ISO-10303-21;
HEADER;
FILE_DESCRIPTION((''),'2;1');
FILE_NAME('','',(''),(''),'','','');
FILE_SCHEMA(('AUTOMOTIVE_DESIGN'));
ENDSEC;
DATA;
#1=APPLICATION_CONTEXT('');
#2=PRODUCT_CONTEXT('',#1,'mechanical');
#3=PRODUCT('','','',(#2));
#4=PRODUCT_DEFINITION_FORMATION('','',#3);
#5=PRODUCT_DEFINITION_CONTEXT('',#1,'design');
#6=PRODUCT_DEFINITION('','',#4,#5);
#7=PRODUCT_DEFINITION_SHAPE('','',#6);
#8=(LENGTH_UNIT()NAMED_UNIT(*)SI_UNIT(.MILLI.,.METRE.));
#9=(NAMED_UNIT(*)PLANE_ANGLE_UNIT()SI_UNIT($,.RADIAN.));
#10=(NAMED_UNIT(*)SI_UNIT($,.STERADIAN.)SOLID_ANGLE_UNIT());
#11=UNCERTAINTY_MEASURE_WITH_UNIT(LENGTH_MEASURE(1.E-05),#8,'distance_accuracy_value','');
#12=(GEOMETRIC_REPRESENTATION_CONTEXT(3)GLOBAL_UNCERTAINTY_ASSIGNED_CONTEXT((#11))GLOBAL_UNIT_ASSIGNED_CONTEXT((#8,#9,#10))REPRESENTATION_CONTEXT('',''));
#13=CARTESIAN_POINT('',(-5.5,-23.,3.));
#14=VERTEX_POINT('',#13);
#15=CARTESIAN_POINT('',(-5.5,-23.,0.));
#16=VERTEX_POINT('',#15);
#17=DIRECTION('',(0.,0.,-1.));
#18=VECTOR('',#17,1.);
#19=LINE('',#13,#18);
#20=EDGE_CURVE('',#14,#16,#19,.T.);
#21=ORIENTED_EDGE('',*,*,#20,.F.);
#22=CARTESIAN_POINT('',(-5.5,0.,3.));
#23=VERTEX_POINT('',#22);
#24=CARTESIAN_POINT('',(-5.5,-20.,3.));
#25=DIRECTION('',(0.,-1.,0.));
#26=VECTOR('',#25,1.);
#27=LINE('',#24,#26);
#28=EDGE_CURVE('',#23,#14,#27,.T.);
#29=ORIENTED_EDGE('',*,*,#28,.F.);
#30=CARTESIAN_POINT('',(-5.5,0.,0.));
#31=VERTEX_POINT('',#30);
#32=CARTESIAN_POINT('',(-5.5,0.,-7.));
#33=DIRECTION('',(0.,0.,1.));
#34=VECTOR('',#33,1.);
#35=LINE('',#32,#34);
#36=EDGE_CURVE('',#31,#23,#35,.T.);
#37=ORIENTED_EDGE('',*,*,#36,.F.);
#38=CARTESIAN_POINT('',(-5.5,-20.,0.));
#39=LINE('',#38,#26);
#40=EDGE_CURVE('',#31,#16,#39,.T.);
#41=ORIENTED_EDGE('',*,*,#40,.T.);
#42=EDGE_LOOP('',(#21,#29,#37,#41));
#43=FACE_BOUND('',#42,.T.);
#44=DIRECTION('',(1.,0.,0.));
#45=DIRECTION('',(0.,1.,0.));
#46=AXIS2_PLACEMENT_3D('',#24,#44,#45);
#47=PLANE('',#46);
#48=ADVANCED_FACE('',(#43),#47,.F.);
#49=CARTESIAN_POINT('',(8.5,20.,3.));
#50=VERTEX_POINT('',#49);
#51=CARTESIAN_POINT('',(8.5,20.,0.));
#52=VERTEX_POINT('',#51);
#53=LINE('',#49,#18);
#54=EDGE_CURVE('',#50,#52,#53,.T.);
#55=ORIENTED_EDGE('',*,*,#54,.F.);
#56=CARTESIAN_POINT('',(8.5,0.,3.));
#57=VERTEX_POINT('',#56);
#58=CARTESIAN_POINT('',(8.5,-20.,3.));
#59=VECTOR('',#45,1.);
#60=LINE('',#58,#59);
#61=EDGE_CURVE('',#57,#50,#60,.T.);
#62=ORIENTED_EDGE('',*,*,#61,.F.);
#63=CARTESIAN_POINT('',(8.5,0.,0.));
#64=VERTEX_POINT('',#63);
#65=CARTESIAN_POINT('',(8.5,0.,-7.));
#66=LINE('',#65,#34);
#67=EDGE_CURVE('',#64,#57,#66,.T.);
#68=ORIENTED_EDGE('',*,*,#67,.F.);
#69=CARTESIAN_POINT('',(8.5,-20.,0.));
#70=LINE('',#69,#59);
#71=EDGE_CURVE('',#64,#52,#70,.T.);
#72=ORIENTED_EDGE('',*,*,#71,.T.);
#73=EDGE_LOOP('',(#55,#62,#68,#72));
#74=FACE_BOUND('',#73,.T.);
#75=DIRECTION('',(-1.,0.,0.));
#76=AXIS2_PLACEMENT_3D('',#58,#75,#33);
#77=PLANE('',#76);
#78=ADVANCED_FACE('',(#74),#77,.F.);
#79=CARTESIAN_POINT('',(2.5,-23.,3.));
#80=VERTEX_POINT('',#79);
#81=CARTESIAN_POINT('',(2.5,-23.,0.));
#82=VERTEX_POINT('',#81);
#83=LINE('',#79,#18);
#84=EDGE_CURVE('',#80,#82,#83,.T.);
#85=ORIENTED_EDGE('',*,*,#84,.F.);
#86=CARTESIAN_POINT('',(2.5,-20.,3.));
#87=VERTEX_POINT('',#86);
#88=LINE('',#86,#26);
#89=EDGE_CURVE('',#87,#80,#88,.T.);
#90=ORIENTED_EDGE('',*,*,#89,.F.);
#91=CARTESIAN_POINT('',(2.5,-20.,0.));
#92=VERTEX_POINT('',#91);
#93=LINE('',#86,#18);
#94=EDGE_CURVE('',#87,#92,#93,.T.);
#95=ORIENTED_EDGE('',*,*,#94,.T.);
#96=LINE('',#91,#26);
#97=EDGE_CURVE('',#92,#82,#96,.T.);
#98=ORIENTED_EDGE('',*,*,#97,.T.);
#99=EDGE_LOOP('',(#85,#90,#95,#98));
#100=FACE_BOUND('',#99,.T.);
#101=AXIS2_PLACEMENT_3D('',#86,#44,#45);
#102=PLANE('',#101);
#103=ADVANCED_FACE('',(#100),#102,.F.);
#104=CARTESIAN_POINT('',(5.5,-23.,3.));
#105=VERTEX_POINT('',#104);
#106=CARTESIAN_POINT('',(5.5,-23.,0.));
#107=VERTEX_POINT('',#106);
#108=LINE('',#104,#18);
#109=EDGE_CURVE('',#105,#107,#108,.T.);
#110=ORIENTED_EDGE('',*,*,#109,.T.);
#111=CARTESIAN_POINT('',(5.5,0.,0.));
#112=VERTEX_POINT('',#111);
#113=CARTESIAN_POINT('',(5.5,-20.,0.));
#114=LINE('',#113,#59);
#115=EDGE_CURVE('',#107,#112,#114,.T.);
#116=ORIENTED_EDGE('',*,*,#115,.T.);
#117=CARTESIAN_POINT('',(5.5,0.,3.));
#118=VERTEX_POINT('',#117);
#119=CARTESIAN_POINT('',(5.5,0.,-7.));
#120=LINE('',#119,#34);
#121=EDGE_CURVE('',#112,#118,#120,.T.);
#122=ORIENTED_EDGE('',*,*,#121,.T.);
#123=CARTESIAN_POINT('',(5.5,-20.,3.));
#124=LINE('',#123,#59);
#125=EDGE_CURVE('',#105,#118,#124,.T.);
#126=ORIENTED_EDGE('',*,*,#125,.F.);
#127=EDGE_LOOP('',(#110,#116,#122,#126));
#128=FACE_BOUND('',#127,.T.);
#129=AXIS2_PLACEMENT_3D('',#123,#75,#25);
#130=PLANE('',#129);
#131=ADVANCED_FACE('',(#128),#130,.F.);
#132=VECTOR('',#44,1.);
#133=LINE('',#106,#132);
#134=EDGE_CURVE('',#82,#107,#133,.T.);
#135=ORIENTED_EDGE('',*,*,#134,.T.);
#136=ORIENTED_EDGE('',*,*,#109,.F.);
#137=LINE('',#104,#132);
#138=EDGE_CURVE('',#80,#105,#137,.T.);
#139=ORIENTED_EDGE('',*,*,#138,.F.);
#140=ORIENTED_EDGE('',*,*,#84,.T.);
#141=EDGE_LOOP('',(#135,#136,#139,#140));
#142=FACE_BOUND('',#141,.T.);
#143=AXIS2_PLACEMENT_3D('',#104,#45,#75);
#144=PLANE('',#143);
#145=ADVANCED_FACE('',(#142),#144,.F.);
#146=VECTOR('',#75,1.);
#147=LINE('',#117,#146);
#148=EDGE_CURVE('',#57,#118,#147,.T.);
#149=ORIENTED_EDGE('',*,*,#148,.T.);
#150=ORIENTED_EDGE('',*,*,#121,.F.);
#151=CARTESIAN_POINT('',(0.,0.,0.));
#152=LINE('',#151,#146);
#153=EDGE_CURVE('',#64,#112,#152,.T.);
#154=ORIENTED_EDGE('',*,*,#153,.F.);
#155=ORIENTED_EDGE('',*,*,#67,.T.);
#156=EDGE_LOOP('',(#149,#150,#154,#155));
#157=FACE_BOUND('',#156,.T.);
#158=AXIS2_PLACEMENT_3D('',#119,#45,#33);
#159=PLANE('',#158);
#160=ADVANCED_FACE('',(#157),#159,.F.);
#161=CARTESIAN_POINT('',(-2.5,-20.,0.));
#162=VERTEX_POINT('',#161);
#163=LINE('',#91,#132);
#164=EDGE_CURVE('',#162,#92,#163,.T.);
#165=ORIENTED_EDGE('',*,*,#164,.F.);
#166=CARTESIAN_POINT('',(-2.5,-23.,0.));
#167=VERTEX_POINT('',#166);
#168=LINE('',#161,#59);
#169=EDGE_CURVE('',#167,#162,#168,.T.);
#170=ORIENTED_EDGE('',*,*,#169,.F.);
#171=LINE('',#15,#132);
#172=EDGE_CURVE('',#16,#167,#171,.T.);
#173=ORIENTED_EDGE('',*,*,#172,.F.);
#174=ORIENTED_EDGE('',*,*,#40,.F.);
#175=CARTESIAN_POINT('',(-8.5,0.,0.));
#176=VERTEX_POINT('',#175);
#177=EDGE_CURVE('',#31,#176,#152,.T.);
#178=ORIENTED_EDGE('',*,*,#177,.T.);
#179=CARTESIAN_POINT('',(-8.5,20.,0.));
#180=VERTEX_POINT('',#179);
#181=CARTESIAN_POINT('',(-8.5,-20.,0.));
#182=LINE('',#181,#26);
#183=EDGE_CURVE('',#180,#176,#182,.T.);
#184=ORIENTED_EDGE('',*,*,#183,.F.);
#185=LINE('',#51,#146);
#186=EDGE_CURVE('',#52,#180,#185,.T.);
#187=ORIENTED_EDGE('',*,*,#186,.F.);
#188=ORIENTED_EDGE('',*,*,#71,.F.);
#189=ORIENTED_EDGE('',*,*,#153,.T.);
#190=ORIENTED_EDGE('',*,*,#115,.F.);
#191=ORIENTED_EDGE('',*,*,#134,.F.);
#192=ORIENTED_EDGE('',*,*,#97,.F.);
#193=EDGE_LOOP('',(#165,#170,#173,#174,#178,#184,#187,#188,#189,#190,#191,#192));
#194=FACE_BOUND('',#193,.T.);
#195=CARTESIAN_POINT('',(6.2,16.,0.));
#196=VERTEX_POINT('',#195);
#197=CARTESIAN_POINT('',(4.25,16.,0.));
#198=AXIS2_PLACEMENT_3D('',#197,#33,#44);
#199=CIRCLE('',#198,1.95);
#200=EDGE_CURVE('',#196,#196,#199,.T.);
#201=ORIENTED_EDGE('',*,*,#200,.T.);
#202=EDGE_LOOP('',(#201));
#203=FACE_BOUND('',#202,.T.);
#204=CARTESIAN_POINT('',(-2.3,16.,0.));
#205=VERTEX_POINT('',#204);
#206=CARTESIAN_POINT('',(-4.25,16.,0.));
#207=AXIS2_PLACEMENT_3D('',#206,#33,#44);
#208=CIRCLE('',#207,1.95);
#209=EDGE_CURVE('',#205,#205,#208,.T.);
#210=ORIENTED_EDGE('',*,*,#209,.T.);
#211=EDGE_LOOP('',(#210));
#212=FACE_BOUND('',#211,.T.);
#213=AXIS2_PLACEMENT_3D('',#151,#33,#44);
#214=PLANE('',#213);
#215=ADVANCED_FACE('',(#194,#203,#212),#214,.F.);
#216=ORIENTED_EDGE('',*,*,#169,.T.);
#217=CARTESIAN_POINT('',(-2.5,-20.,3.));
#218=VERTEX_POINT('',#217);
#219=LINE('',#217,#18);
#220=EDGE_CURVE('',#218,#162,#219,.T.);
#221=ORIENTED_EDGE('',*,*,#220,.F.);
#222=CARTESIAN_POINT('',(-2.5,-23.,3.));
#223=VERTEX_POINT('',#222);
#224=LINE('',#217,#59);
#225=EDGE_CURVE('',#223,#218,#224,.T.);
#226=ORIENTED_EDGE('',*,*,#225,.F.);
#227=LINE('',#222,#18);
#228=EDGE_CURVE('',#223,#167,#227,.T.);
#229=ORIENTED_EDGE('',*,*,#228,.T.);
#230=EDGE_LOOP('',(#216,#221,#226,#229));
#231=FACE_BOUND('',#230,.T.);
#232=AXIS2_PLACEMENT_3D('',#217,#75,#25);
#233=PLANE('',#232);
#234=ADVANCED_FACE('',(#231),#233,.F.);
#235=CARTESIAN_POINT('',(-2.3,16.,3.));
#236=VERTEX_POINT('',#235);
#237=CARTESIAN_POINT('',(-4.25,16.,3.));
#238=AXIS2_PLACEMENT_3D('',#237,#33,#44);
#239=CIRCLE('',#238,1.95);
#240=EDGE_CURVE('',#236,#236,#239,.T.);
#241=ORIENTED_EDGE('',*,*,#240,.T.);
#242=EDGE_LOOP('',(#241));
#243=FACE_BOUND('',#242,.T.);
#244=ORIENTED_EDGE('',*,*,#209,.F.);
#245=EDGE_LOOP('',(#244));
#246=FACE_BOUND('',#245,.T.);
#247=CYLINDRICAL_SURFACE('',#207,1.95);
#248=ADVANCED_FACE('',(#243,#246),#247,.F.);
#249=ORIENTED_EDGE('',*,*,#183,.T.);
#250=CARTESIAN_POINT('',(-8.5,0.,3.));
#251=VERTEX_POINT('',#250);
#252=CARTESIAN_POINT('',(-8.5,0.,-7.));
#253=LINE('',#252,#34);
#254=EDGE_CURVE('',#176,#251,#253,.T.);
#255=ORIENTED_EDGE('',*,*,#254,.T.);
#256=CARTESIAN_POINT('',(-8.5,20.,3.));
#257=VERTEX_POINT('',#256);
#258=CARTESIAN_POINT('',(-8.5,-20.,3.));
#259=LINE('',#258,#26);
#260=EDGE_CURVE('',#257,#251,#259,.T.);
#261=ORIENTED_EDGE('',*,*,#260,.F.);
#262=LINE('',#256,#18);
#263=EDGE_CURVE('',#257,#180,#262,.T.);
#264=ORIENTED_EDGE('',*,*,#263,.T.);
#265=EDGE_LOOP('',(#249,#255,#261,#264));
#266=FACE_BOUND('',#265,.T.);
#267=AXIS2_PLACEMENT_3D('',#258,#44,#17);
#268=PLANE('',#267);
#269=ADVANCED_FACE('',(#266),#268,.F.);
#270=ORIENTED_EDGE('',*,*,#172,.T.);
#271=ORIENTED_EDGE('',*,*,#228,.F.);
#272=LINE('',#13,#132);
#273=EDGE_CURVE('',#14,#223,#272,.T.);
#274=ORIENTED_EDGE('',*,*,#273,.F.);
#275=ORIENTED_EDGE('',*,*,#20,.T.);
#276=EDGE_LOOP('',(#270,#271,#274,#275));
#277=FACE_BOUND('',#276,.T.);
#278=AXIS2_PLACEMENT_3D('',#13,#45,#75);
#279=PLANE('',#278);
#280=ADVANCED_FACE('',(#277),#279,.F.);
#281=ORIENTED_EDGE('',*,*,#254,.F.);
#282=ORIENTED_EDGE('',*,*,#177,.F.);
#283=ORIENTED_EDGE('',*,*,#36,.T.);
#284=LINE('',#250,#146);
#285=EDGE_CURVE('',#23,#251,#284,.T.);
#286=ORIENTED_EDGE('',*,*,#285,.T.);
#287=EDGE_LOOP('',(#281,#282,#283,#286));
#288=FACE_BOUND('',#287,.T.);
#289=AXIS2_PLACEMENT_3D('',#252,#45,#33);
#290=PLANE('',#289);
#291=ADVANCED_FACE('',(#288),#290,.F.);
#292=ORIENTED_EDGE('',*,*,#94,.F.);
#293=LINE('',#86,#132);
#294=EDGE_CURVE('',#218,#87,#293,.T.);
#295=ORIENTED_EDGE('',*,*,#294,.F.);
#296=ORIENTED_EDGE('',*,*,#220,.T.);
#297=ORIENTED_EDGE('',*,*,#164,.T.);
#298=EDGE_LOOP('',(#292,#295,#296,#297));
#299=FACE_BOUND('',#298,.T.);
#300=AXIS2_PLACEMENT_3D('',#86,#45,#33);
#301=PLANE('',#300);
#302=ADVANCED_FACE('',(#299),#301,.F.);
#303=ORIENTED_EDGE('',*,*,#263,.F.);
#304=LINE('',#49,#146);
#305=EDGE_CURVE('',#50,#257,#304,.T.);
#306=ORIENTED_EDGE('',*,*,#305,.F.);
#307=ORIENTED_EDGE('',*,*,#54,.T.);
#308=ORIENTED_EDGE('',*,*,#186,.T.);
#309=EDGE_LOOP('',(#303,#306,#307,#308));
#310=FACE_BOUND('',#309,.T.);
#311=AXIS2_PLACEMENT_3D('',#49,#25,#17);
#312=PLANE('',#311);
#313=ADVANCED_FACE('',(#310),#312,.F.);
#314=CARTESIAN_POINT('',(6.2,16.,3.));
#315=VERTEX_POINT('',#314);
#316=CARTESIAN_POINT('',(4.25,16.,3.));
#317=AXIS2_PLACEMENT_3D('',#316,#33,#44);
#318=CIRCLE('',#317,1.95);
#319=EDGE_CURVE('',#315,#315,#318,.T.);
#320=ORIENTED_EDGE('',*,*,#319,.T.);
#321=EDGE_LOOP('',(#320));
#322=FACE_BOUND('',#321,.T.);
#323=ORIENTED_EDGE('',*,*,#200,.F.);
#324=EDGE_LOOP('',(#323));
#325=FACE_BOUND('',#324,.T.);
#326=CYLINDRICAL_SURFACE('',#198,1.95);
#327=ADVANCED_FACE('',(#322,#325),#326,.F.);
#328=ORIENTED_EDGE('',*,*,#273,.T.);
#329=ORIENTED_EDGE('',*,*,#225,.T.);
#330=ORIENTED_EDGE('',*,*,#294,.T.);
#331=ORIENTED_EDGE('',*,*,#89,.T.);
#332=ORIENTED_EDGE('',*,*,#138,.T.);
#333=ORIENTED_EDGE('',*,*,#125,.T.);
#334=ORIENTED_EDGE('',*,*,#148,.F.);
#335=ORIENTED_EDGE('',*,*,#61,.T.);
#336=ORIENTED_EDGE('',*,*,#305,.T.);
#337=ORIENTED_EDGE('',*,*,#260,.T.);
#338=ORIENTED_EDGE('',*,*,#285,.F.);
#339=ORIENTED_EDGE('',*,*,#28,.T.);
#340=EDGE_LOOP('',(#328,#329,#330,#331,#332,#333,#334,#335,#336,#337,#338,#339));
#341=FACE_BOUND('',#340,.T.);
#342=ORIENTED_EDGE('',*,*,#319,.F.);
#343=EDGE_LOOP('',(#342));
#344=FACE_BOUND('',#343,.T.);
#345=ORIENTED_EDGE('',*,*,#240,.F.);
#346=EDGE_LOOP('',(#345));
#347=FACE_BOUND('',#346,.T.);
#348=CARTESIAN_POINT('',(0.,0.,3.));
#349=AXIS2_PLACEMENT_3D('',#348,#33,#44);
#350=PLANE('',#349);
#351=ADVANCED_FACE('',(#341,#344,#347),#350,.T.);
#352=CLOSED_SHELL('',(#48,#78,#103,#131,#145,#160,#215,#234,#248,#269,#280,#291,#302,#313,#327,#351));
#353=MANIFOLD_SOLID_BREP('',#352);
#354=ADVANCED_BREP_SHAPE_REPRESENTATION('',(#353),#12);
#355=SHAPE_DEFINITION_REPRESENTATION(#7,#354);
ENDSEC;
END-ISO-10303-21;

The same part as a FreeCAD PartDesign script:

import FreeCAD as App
import Part
import Sketcher
Q = App.Units.Quantity


def add_polygon(sketch, points):
    """Adds a closed chain of lines whose ends are joined by coincident constraints."""
    first, n = sketch.GeometryCount, len(points)
    for a, b in zip(points, points[1:] + points[:1]):
        sketch.addGeometry(Part.LineSegment(App.Vector(*a, 0), App.Vector(*b, 0)), False)
    for i in range(n):
        sketch.addConstraint(Sketcher.Constraint("Coincident", first + i, 2, first + (i + 1) % n, 1))

doc = App.newDocument("Part")
body = doc.addObject("PartDesign::Body", "Body")

# Sketch on XY plane
sketch1 = body.newObject("Sketcher::SketchObject", "Sketch")
sketch1.AttachmentSupport = (doc.getObject("XY_Plane"), [""])
sketch1.MapMode = "FlatFace"
add_polygon(sketch1, [(5.5, -20), (8.5, -20), (8.5, 20), (-8.5, 20), (-8.5, -20), (-5.5, -20), (-5.5, -23), (-2.5, -23), (-2.5, -20), (2.5, -20), (2.5, -23), (5.5, -23)])  # lines 0-11
sketch1.addConstraint(Sketcher.Constraint("Horizontal", 0))
sketch1.addConstraint(Sketcher.Constraint("Vertical", 1))
sketch1.addConstraint(Sketcher.Constraint("Horizontal", 2))
sketch1.addConstraint(Sketcher.Constraint("Vertical", 3))
sketch1.addConstraint(Sketcher.Constraint("Horizontal", 4))
sketch1.addConstraint(Sketcher.Constraint("Vertical", 5))
sketch1.addConstraint(Sketcher.Constraint("Horizontal", 6))
sketch1.addConstraint(Sketcher.Constraint("Vertical", 7))
sketch1.addConstraint(Sketcher.Constraint("Horizontal", 8))
sketch1.addConstraint(Sketcher.Constraint("Vertical", 9))
sketch1.addConstraint(Sketcher.Constraint("Horizontal", 10))
sketch1.addConstraint(Sketcher.Constraint("Vertical", 11))
sketch1.addConstraint(Sketcher.Constraint("Symmetric", 0, 2, 2, 2, -1, 1))
sketch1.addConstraint(Sketcher.Constraint("Symmetric", 6, 2, 9, 2, -2))
sketch1.addConstraint(Sketcher.Constraint("Symmetric", 4, 2, 11, 2, -2))
sketch1.addConstraint(Sketcher.Constraint("Horizontal", 4, 2, 7, 2))
sketch1.addConstraint(Sketcher.Constraint("Equal", 4, 6))
sketch1.addConstraint(Sketcher.Constraint("Equal", 10, 5))
sketch1.addConstraint(Sketcher.Constraint("DistanceX", 0, 1, 0, 2, Q("3 mm")))
sketch1.addConstraint(Sketcher.Constraint("DistanceX", 2, 2, 2, 1, Q("17 mm")))
sketch1.addConstraint(Sketcher.Constraint("DistanceY", 1, 1, 1, 2, Q("40 mm")))
pad1 = body.newObject("PartDesign::Pad", "Pad")
pad1.Profile = sketch1
pad1.Length = 3

# Sketch on XY plane
sketch2 = body.newObject("Sketcher::SketchObject", "Sketch001")
sketch2.AttachmentSupport = (doc.getObject("XY_Plane"), [""])
sketch2.MapMode = "FlatFace"
sketch2.AttachmentOffset = App.Placement(App.Vector(0, 0, 3), App.Rotation())
sketch2.addGeometry(Part.Circle(App.Vector(-4.2, 16, 0), App.Vector(0, 0, 1), 1.9), False)
sketch2.addGeometry(Part.Circle(App.Vector(4.2, 16, 0), App.Vector(0, 0, 1), 1.9), False)
sketch2.addConstraint(Sketcher.Constraint("Equal", 0, 1))
sketch2.addConstraint(Sketcher.Constraint("Symmetric", 0, 3, 1, 3, -2))
sketch2.addConstraint(Sketcher.Constraint("Diameter", 0, Q("3.9 mm")))
sketch2.addConstraint(Sketcher.Constraint("DistanceY", -1, 1, 0, 3, Q("16 mm")))
sketch2.addConstraint(Sketcher.Constraint("DistanceX", 0, 3, 1, 3, Q("8.5 mm")))
pocket1 = body.newObject("PartDesign::Pocket", "Pocket")
pocket1.Profile = sketch2
pocket1.Type = "ThroughAll"

# Sketch on XY plane
sketch3 = body.newObject("Sketcher::SketchObject", "Sketch002")
sketch3.AttachmentSupport = (doc.getObject("XY_Plane"), [""])
sketch3.MapMode = "FlatFace"
sketch3.AttachmentOffset = App.Placement(App.Vector(0, 0, 3), App.Rotation())
add_polygon(sketch3, [(-8.5, -16), (-8.5, -20), (-5.5, -20), (-5.5, -16)])  # lines 0-3
add_polygon(sketch3, [(5.5, -16), (5.5, -20), (8.5, -20), (8.5, -16)])  # lines 4-7
sketch3.addConstraint(Sketcher.Constraint("Vertical", 0))
sketch3.addConstraint(Sketcher.Constraint("Horizontal", 1))
sketch3.addConstraint(Sketcher.Constraint("Vertical", 2))
sketch3.addConstraint(Sketcher.Constraint("Horizontal", 3))
sketch3.addConstraint(Sketcher.Constraint("Vertical", 4))
sketch3.addConstraint(Sketcher.Constraint("Horizontal", 5))
sketch3.addConstraint(Sketcher.Constraint("Vertical", 6))
sketch3.addConstraint(Sketcher.Constraint("Horizontal", 7))
sketch3.addConstraint(Sketcher.Constraint("Symmetric", 1, 2, 4, 2, -2))
sketch3.addConstraint(Sketcher.Constraint("Symmetric", 3, 2, 6, 2, -2))
sketch3.addConstraint(Sketcher.Constraint("DistanceX", 1, 1, 1, 2, Q("3 mm")))
sketch3.addConstraint(Sketcher.Constraint("DistanceY", 0, 2, 0, 1, Q("4 mm")))
sketch3.addConstraint(Sketcher.Constraint("DistanceY", 0, 2, -1, 1, Q("20 mm")))
sketch3.addConstraint(Sketcher.Constraint("DistanceX", 1, 2, 4, 2, Q("11 mm")))
pocket2 = body.newObject("PartDesign::Pocket", "Pocket001")
pocket2.Profile = sketch3
pocket2.Type = "ThroughAll"

# Sketch on XY plane
sketch4 = body.newObject("Sketcher::SketchObject", "Sketch003")
sketch4.AttachmentSupport = (doc.getObject("XY_Plane"), [""])
sketch4.MapMode = "FlatFace"
sketch4.AttachmentOffset = App.Placement(App.Vector(0, 0, 3), App.Rotation())
add_polygon(sketch4, [(-8.5, 0), (-8.5, -16), (-5.5, -16), (-5.5, 0)])  # lines 0-3
add_polygon(sketch4, [(5.5, 0), (5.5, -16), (8.5, -16), (8.5, 0)])  # lines 4-7
sketch4.addConstraint(Sketcher.Constraint("Vertical", 0))
sketch4.addConstraint(Sketcher.Constraint("Horizontal", 1))
sketch4.addConstraint(Sketcher.Constraint("Vertical", 2))
sketch4.addConstraint(Sketcher.Constraint("Horizontal", 3))
sketch4.addConstraint(Sketcher.Constraint("Vertical", 4))
sketch4.addConstraint(Sketcher.Constraint("Horizontal", 5))
sketch4.addConstraint(Sketcher.Constraint("Vertical", 6))
sketch4.addConstraint(Sketcher.Constraint("Horizontal", 7))
sketch4.addConstraint(Sketcher.Constraint("Symmetric", 3, 2, 6, 2, -1, 1))
sketch4.addConstraint(Sketcher.Constraint("Symmetric", 1, 2, 4, 2, -2))
sketch4.addConstraint(Sketcher.Constraint("PointOnObject", 2, 2, -1))
sketch4.addConstraint(Sketcher.Constraint("DistanceX", 1, 1, 1, 2, Q("3 mm")))
sketch4.addConstraint(Sketcher.Constraint("DistanceY", 0, 2, 0, 1, Q("16 mm")))
sketch4.addConstraint(Sketcher.Constraint("DistanceX", 1, 2, 4, 2, Q("11 mm")))
pocket3 = body.newObject("PartDesign::Pocket", "Pocket002")
pocket3.Profile = sketch4
pocket3.Length = 10

doc.recompute()
